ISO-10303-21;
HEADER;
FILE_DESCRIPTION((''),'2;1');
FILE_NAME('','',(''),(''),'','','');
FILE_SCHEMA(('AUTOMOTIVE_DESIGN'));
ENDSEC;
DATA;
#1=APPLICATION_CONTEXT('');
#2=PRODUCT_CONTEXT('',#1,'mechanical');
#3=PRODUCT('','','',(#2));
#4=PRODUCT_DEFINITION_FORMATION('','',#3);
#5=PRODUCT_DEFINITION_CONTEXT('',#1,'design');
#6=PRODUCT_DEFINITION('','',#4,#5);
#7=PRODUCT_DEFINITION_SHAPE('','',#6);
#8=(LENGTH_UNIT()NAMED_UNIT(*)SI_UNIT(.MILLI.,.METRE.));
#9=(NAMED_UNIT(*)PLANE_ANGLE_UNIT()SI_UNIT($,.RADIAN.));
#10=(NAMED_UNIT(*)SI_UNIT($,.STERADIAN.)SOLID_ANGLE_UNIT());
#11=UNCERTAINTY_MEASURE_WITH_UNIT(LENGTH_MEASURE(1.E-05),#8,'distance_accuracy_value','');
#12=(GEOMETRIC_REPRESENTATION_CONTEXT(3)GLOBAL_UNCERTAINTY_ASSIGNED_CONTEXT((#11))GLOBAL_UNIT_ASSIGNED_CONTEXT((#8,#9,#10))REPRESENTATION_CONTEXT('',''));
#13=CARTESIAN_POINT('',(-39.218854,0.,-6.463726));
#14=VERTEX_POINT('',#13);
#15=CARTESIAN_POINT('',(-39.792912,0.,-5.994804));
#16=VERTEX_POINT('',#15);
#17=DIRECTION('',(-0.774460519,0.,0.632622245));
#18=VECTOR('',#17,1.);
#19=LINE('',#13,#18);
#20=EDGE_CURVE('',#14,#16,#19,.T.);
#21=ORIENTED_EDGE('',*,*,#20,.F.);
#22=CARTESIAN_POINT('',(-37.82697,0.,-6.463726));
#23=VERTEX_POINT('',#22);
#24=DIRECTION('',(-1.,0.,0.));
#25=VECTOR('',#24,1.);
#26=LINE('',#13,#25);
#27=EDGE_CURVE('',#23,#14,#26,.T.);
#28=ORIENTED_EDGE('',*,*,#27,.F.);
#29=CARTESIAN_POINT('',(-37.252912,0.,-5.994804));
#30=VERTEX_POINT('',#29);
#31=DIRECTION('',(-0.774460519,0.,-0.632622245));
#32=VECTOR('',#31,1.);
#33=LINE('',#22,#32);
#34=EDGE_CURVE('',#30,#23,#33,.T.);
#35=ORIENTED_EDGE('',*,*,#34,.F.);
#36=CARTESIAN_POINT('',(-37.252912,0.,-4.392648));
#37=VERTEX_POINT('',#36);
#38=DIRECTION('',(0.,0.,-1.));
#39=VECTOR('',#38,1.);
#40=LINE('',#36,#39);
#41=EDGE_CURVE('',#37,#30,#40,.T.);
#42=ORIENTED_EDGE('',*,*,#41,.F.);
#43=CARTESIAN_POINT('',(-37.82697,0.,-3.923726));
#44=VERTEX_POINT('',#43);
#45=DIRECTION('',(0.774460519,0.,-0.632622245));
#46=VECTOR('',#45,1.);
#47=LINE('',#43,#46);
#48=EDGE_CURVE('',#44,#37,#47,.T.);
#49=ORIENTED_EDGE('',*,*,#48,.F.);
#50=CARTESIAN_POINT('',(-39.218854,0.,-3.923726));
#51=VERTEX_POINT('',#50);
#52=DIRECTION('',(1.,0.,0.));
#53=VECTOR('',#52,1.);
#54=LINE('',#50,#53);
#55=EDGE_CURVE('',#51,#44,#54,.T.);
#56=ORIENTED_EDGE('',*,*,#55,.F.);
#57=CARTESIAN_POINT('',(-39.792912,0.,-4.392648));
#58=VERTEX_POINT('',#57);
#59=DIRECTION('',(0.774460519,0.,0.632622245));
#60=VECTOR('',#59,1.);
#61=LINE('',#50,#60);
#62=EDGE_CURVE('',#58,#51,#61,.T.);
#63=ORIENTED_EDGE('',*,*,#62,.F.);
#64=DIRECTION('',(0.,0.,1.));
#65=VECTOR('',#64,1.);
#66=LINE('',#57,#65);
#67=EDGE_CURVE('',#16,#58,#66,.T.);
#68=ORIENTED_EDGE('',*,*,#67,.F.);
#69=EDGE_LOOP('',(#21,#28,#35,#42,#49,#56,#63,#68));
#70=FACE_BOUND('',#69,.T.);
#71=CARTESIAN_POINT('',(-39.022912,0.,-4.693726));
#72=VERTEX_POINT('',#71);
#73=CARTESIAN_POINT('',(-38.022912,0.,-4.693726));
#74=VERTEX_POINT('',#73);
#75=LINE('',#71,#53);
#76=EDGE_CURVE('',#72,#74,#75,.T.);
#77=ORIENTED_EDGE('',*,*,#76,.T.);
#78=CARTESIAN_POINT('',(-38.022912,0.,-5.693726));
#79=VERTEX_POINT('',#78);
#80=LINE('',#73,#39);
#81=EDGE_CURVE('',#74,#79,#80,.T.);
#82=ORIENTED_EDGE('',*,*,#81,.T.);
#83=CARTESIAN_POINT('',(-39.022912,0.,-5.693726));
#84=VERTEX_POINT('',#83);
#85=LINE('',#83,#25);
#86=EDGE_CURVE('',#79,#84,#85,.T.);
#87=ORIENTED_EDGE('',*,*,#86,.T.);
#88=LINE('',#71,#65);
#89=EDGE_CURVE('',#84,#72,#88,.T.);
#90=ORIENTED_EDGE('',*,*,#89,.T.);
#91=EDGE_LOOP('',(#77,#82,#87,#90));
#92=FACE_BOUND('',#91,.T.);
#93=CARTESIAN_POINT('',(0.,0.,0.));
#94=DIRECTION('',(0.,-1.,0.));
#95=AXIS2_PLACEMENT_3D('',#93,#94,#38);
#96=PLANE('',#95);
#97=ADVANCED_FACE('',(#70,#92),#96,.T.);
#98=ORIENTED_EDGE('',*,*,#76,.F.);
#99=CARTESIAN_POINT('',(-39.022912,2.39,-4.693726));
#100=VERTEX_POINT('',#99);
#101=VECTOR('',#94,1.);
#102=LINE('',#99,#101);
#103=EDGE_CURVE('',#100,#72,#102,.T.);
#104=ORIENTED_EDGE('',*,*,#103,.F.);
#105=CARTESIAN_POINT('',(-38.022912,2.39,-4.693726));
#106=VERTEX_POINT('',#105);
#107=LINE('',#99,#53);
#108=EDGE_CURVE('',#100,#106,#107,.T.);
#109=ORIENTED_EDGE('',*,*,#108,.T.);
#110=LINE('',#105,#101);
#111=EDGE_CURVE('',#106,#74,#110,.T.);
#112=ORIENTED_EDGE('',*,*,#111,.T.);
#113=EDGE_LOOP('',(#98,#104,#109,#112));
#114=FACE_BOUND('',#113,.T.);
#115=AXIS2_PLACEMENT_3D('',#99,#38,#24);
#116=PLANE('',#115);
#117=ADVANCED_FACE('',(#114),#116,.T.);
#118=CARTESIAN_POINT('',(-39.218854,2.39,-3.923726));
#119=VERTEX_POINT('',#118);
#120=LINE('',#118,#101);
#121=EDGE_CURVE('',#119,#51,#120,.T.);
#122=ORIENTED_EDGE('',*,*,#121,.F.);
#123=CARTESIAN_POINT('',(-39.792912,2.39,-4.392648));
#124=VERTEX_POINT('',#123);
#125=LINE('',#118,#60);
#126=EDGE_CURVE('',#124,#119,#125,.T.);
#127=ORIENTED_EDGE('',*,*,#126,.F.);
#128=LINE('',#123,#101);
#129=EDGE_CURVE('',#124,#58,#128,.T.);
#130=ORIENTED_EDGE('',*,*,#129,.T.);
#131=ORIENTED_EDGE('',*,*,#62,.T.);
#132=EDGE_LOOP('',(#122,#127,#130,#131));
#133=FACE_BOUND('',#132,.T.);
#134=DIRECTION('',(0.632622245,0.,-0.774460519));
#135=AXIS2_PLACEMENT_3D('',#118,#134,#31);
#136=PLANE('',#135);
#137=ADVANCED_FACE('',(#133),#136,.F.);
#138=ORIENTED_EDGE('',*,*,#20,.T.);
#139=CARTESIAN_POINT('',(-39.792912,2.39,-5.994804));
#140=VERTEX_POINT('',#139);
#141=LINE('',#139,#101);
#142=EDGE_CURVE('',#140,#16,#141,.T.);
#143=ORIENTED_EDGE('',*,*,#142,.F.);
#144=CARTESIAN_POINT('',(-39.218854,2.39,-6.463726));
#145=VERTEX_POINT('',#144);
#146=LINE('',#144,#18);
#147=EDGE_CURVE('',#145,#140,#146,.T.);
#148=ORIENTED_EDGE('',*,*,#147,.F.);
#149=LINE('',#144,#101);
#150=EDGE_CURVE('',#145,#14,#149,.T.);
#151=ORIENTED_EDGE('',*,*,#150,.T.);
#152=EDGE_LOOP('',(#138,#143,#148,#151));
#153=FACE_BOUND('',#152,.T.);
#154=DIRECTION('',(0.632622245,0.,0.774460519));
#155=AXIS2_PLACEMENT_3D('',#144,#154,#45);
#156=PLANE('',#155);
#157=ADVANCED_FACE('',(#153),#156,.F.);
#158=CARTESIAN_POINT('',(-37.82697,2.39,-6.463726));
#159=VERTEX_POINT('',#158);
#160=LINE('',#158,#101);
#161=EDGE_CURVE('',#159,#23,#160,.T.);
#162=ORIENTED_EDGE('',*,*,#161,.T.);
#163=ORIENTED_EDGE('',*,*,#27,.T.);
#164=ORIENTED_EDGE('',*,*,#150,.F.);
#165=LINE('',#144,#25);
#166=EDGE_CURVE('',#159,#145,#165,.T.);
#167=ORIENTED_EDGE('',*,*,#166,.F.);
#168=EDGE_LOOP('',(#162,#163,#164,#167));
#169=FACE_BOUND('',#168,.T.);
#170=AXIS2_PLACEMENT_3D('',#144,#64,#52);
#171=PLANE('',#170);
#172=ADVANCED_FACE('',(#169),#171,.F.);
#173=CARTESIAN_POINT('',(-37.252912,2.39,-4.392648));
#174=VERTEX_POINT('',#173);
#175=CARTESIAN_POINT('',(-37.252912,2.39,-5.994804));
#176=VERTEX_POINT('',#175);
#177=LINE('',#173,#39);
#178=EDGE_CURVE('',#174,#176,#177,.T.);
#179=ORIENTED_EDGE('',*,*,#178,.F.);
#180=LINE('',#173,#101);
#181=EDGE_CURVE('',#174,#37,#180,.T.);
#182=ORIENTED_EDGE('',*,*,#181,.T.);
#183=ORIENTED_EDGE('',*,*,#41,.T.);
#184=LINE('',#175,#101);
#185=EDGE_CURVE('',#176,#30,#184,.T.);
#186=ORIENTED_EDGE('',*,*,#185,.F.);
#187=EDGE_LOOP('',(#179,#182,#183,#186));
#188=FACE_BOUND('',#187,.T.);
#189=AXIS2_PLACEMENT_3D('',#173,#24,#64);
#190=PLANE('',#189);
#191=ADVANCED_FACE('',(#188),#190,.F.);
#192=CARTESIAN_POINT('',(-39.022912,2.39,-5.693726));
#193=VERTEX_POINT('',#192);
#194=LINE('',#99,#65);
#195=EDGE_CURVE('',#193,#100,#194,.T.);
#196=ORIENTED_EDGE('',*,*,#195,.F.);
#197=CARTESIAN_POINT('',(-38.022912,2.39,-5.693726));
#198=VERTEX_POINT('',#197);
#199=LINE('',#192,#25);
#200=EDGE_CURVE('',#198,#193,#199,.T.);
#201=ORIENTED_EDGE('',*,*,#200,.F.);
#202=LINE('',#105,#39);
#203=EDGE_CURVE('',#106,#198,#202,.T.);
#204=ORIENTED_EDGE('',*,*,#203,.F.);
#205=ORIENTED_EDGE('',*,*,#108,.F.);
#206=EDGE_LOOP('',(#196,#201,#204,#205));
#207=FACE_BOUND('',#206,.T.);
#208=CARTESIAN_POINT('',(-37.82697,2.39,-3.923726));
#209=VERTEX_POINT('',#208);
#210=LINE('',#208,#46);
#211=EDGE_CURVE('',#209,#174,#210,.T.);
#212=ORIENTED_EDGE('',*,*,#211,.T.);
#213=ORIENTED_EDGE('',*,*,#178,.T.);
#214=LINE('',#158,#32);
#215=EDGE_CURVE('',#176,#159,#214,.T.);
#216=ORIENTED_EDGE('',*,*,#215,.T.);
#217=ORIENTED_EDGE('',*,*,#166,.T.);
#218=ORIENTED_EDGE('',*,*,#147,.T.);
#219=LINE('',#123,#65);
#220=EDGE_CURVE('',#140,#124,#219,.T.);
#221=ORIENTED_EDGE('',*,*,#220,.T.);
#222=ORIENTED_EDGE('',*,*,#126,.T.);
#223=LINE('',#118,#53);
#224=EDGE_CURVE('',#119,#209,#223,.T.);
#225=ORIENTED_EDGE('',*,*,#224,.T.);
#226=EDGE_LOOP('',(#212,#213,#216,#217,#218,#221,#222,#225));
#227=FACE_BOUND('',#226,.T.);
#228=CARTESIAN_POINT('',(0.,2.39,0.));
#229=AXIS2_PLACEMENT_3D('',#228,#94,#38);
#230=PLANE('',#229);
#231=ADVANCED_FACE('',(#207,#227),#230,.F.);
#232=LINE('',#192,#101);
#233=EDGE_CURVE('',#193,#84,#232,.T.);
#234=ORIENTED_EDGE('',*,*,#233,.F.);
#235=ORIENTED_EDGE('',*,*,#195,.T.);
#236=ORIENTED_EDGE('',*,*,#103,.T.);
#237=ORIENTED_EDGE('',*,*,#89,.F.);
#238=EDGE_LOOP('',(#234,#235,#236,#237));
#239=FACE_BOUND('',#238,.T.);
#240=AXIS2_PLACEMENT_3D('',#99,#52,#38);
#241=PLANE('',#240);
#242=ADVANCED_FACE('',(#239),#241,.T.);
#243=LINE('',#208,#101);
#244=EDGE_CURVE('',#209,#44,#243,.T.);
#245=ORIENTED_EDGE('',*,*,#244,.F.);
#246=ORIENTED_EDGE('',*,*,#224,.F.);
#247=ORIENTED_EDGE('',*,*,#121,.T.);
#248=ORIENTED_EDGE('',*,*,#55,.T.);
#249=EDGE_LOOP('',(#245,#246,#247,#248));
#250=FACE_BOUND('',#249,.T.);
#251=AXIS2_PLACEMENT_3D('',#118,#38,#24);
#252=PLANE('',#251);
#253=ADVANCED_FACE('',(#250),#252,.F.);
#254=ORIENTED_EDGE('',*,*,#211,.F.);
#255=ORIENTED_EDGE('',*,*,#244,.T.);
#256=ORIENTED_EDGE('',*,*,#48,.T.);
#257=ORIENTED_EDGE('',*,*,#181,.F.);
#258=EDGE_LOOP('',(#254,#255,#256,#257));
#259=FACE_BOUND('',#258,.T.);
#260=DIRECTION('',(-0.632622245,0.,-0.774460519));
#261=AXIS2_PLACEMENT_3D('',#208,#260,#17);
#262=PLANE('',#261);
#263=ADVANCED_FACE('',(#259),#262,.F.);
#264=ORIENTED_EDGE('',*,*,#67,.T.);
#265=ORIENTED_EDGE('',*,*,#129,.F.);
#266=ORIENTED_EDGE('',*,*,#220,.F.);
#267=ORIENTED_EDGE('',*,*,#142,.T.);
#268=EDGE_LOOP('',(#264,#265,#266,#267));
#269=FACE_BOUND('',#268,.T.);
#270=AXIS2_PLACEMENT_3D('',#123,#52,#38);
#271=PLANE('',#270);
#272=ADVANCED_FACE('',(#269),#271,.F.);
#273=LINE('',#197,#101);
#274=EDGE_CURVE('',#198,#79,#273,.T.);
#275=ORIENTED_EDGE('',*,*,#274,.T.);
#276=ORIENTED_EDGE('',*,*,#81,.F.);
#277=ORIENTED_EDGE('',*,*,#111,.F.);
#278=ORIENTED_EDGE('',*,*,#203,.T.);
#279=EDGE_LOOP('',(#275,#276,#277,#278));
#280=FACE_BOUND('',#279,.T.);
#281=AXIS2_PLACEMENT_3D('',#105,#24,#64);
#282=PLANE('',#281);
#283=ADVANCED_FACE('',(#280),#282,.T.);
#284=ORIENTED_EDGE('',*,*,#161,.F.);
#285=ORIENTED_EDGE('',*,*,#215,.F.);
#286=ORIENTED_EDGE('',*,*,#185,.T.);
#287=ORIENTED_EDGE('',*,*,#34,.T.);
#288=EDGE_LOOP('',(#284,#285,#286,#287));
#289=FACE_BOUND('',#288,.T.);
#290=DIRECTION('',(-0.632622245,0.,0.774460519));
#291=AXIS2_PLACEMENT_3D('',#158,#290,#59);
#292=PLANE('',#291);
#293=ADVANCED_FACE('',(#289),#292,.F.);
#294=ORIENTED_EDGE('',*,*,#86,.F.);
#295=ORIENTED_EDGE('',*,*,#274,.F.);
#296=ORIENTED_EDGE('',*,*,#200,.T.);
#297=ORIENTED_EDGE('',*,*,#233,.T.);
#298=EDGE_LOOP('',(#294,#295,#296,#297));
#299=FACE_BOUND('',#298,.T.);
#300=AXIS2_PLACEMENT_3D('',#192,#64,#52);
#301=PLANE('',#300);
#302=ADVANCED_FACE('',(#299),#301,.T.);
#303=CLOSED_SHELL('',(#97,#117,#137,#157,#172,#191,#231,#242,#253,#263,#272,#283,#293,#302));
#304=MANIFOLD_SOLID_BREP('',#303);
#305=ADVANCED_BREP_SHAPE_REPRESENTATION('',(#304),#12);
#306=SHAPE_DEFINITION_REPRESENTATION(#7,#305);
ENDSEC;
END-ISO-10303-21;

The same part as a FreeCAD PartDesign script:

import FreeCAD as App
import Part
import Sketcher
from FreeCAD import Vector
Q = App.Units.Quantity

doc = App.newDocument("Part")
params = doc.addObject("Spreadsheet::Sheet", "Params")
for row, (alias, value) in enumerate([
    ("sketch1_width", "1 mm"),
    ("pad1_length", "2.39 mm"),
], start=1):
    params.set(f"A{row}", alias)
    params.set(f"B{row}", "=" + value)
    params.setAlias(f"B{row}", alias)

body = doc.addObject("PartDesign::Body", "Body")

# Sketch on XZ plane
sketch1 = doc.addObject("Sketcher::SketchObject", "Sketch")
body.addObject(sketch1)
sketch1.AttachmentSupport = (doc.XZ_Plane, [""])
sketch1.MapMode = "FlatFace"
sketch1.addGeometry(Part.LineSegment(Vector(-39.2, -3.9, 0), Vector(-37.8, -3.9, 0)), False)
sketch1.addGeometry(Part.LineSegment(Vector(-37.8, -3.9, 0), Vector(-37.3, -4.4, 0)), False)
sketch1.addGeometry(Part.LineSegment(Vector(-37.3, -4.4, 0), Vector(-37.3, -6, 0)), False)
sketch1.addGeometry(Part.LineSegment(Vector(-37.3, -6, 0), Vector(-37.8, -6.5, 0)), False)
sketch1.addGeometry(Part.LineSegment(Vector(-37.8, -6.5, 0), Vector(-39.2, -6.5, 0)), False)
sketch1.addGeometry(Part.LineSegment(Vector(-39.2, -6.5, 0), Vector(-39.8, -6, 0)), False)
sketch1.addGeometry(Part.LineSegment(Vector(-39.8, -6, 0), Vector(-39.8, -4.4, 0)), False)
sketch1.addGeometry(Part.LineSegment(Vector(-39.8, -4.4, 0), Vector(-39.2, -3.9, 0)), False)
sketch1.addGeometry(Part.LineSegment(Vector(-38, -4.7, 0), Vector(-39, -4.7, 0)), False)
sketch1.addGeometry(Part.LineSegment(Vector(-39, -4.7, 0), Vector(-39, -5.7, 0)), False)
sketch1.addGeometry(Part.LineSegment(Vector(-39, -5.7, 0), Vector(-38, -5.7, 0)), False)
sketch1.addGeometry(Part.LineSegment(Vector(-38, -5.7, 0), Vector(-38, -4.7, 0)), False)
sketch1.addConstraint(Sketcher.Constraint("Coincident", 0, 2, 1, 1))
sketch1.addConstraint(Sketcher.Constraint("Coincident", 1, 2, 2, 1))
sketch1.addConstraint(Sketcher.Constraint("Coincident", 2, 2, 3, 1))
sketch1.addConstraint(Sketcher.Constraint("Coincident", 3, 2, 4, 1))
sketch1.addConstraint(Sketcher.Constraint("Coincident", 4, 2, 5, 1))
sketch1.addConstraint(Sketcher.Constraint("Coincident", 5, 2, 6, 1))
sketch1.addConstraint(Sketcher.Constraint("Coincident", 6, 2, 7, 1))
sketch1.addConstraint(Sketcher.Constraint("Coincident", 7, 2, 0, 1))
sketch1.addConstraint(Sketcher.Constraint("Coincident", 8, 2, 9, 1))
sketch1.addConstraint(Sketcher.Constraint("Coincident", 9, 2, 10, 1))
sketch1.addConstraint(Sketcher.Constraint("Coincident", 10, 2, 11, 1))
sketch1.addConstraint(Sketcher.Constraint("Coincident", 11, 2, 8, 1))
sketch1.addConstraint(Sketcher.Constraint("Horizontal", 0))
sketch1.addConstraint(Sketcher.Constraint("Vertical", 2))
sketch1.addConstraint(Sketcher.Constraint("Horizontal", 4))
sketch1.addConstraint(Sketcher.Constraint("Vertical", 6))
sketch1.addConstraint(Sketcher.Constraint("Horizontal", 8))
sketch1.addConstraint(Sketcher.Constraint("Vertical", 9))
sketch1.addConstraint(Sketcher.Constraint("Horizontal", 10))
sketch1.addConstraint(Sketcher.Constraint("Vertical", 11))
sketch1.addConstraint(Sketcher.Constraint("Parallel", 1, 5))
sketch1.addConstraint(Sketcher.Constraint("Parallel", 3, 7))
sketch1.addConstraint(Sketcher.Constraint("Horizontal", 2, 2, 5, 2))
sketch1.addConstraint(Sketcher.Constraint("Horizontal", 1, 2, 6, 2))
sketch1.addConstraint(Sketcher.Constraint("Vertical", 0, 2, 3, 2))
sketch1.addConstraint(Sketcher.Constraint("Vertical", 4, 2, 7, 2))
sketch1.addConstraint(Sketcher.Constraint("Equal", 10, 9))
sketch1.addConstraint(Sketcher.Constraint("DistanceX", 8, 2, 8, 1, Q("1 mm")))
sketch1.addConstraint(Sketcher.Constraint("DistanceY", 3, 2, 0, 2, Q("2.54 mm")))
sketch1.addConstraint(Sketcher.Constraint("DistanceX", 5, 2, 2, 2, Q("2.54 mm")))
sketch1.addConstraint(Sketcher.Constraint("DistanceY", 8, 2, 7, 2, Q("0.77 mm")))
sketch1.addConstraint(Sketcher.Constraint("DistanceX", 6, 2, 8, 2, Q("0.77 mm")))
sketch1.addConstraint(Sketcher.Constraint("DistanceX", 0, 1, 0, 2, Q("1.391884 mm")))
sketch1.addConstraint(Sketcher.Constraint("DistanceY", 2, 2, 2, 1, Q("1.602155 mm")))
sketch1.addConstraint(Sketcher.Constraint("DistanceX", 0, 2, -1, 1, Q("37.82697 mm")))
sketch1.addConstraint(Sketcher.Constraint("DistanceY", 1, 2, -1, 1, Q("4.392648 mm")))
sketch1.setExpression("Constraints[27]", "Params.sketch1_width")
pad1 = doc.addObject("PartDesign::Pad", "Pad")
body.addObject(pad1)
pad1.Profile = sketch1
pad1.setExpression("Length", "Params.pad1_length")
pad1.Reversed = True

doc.recompute()
